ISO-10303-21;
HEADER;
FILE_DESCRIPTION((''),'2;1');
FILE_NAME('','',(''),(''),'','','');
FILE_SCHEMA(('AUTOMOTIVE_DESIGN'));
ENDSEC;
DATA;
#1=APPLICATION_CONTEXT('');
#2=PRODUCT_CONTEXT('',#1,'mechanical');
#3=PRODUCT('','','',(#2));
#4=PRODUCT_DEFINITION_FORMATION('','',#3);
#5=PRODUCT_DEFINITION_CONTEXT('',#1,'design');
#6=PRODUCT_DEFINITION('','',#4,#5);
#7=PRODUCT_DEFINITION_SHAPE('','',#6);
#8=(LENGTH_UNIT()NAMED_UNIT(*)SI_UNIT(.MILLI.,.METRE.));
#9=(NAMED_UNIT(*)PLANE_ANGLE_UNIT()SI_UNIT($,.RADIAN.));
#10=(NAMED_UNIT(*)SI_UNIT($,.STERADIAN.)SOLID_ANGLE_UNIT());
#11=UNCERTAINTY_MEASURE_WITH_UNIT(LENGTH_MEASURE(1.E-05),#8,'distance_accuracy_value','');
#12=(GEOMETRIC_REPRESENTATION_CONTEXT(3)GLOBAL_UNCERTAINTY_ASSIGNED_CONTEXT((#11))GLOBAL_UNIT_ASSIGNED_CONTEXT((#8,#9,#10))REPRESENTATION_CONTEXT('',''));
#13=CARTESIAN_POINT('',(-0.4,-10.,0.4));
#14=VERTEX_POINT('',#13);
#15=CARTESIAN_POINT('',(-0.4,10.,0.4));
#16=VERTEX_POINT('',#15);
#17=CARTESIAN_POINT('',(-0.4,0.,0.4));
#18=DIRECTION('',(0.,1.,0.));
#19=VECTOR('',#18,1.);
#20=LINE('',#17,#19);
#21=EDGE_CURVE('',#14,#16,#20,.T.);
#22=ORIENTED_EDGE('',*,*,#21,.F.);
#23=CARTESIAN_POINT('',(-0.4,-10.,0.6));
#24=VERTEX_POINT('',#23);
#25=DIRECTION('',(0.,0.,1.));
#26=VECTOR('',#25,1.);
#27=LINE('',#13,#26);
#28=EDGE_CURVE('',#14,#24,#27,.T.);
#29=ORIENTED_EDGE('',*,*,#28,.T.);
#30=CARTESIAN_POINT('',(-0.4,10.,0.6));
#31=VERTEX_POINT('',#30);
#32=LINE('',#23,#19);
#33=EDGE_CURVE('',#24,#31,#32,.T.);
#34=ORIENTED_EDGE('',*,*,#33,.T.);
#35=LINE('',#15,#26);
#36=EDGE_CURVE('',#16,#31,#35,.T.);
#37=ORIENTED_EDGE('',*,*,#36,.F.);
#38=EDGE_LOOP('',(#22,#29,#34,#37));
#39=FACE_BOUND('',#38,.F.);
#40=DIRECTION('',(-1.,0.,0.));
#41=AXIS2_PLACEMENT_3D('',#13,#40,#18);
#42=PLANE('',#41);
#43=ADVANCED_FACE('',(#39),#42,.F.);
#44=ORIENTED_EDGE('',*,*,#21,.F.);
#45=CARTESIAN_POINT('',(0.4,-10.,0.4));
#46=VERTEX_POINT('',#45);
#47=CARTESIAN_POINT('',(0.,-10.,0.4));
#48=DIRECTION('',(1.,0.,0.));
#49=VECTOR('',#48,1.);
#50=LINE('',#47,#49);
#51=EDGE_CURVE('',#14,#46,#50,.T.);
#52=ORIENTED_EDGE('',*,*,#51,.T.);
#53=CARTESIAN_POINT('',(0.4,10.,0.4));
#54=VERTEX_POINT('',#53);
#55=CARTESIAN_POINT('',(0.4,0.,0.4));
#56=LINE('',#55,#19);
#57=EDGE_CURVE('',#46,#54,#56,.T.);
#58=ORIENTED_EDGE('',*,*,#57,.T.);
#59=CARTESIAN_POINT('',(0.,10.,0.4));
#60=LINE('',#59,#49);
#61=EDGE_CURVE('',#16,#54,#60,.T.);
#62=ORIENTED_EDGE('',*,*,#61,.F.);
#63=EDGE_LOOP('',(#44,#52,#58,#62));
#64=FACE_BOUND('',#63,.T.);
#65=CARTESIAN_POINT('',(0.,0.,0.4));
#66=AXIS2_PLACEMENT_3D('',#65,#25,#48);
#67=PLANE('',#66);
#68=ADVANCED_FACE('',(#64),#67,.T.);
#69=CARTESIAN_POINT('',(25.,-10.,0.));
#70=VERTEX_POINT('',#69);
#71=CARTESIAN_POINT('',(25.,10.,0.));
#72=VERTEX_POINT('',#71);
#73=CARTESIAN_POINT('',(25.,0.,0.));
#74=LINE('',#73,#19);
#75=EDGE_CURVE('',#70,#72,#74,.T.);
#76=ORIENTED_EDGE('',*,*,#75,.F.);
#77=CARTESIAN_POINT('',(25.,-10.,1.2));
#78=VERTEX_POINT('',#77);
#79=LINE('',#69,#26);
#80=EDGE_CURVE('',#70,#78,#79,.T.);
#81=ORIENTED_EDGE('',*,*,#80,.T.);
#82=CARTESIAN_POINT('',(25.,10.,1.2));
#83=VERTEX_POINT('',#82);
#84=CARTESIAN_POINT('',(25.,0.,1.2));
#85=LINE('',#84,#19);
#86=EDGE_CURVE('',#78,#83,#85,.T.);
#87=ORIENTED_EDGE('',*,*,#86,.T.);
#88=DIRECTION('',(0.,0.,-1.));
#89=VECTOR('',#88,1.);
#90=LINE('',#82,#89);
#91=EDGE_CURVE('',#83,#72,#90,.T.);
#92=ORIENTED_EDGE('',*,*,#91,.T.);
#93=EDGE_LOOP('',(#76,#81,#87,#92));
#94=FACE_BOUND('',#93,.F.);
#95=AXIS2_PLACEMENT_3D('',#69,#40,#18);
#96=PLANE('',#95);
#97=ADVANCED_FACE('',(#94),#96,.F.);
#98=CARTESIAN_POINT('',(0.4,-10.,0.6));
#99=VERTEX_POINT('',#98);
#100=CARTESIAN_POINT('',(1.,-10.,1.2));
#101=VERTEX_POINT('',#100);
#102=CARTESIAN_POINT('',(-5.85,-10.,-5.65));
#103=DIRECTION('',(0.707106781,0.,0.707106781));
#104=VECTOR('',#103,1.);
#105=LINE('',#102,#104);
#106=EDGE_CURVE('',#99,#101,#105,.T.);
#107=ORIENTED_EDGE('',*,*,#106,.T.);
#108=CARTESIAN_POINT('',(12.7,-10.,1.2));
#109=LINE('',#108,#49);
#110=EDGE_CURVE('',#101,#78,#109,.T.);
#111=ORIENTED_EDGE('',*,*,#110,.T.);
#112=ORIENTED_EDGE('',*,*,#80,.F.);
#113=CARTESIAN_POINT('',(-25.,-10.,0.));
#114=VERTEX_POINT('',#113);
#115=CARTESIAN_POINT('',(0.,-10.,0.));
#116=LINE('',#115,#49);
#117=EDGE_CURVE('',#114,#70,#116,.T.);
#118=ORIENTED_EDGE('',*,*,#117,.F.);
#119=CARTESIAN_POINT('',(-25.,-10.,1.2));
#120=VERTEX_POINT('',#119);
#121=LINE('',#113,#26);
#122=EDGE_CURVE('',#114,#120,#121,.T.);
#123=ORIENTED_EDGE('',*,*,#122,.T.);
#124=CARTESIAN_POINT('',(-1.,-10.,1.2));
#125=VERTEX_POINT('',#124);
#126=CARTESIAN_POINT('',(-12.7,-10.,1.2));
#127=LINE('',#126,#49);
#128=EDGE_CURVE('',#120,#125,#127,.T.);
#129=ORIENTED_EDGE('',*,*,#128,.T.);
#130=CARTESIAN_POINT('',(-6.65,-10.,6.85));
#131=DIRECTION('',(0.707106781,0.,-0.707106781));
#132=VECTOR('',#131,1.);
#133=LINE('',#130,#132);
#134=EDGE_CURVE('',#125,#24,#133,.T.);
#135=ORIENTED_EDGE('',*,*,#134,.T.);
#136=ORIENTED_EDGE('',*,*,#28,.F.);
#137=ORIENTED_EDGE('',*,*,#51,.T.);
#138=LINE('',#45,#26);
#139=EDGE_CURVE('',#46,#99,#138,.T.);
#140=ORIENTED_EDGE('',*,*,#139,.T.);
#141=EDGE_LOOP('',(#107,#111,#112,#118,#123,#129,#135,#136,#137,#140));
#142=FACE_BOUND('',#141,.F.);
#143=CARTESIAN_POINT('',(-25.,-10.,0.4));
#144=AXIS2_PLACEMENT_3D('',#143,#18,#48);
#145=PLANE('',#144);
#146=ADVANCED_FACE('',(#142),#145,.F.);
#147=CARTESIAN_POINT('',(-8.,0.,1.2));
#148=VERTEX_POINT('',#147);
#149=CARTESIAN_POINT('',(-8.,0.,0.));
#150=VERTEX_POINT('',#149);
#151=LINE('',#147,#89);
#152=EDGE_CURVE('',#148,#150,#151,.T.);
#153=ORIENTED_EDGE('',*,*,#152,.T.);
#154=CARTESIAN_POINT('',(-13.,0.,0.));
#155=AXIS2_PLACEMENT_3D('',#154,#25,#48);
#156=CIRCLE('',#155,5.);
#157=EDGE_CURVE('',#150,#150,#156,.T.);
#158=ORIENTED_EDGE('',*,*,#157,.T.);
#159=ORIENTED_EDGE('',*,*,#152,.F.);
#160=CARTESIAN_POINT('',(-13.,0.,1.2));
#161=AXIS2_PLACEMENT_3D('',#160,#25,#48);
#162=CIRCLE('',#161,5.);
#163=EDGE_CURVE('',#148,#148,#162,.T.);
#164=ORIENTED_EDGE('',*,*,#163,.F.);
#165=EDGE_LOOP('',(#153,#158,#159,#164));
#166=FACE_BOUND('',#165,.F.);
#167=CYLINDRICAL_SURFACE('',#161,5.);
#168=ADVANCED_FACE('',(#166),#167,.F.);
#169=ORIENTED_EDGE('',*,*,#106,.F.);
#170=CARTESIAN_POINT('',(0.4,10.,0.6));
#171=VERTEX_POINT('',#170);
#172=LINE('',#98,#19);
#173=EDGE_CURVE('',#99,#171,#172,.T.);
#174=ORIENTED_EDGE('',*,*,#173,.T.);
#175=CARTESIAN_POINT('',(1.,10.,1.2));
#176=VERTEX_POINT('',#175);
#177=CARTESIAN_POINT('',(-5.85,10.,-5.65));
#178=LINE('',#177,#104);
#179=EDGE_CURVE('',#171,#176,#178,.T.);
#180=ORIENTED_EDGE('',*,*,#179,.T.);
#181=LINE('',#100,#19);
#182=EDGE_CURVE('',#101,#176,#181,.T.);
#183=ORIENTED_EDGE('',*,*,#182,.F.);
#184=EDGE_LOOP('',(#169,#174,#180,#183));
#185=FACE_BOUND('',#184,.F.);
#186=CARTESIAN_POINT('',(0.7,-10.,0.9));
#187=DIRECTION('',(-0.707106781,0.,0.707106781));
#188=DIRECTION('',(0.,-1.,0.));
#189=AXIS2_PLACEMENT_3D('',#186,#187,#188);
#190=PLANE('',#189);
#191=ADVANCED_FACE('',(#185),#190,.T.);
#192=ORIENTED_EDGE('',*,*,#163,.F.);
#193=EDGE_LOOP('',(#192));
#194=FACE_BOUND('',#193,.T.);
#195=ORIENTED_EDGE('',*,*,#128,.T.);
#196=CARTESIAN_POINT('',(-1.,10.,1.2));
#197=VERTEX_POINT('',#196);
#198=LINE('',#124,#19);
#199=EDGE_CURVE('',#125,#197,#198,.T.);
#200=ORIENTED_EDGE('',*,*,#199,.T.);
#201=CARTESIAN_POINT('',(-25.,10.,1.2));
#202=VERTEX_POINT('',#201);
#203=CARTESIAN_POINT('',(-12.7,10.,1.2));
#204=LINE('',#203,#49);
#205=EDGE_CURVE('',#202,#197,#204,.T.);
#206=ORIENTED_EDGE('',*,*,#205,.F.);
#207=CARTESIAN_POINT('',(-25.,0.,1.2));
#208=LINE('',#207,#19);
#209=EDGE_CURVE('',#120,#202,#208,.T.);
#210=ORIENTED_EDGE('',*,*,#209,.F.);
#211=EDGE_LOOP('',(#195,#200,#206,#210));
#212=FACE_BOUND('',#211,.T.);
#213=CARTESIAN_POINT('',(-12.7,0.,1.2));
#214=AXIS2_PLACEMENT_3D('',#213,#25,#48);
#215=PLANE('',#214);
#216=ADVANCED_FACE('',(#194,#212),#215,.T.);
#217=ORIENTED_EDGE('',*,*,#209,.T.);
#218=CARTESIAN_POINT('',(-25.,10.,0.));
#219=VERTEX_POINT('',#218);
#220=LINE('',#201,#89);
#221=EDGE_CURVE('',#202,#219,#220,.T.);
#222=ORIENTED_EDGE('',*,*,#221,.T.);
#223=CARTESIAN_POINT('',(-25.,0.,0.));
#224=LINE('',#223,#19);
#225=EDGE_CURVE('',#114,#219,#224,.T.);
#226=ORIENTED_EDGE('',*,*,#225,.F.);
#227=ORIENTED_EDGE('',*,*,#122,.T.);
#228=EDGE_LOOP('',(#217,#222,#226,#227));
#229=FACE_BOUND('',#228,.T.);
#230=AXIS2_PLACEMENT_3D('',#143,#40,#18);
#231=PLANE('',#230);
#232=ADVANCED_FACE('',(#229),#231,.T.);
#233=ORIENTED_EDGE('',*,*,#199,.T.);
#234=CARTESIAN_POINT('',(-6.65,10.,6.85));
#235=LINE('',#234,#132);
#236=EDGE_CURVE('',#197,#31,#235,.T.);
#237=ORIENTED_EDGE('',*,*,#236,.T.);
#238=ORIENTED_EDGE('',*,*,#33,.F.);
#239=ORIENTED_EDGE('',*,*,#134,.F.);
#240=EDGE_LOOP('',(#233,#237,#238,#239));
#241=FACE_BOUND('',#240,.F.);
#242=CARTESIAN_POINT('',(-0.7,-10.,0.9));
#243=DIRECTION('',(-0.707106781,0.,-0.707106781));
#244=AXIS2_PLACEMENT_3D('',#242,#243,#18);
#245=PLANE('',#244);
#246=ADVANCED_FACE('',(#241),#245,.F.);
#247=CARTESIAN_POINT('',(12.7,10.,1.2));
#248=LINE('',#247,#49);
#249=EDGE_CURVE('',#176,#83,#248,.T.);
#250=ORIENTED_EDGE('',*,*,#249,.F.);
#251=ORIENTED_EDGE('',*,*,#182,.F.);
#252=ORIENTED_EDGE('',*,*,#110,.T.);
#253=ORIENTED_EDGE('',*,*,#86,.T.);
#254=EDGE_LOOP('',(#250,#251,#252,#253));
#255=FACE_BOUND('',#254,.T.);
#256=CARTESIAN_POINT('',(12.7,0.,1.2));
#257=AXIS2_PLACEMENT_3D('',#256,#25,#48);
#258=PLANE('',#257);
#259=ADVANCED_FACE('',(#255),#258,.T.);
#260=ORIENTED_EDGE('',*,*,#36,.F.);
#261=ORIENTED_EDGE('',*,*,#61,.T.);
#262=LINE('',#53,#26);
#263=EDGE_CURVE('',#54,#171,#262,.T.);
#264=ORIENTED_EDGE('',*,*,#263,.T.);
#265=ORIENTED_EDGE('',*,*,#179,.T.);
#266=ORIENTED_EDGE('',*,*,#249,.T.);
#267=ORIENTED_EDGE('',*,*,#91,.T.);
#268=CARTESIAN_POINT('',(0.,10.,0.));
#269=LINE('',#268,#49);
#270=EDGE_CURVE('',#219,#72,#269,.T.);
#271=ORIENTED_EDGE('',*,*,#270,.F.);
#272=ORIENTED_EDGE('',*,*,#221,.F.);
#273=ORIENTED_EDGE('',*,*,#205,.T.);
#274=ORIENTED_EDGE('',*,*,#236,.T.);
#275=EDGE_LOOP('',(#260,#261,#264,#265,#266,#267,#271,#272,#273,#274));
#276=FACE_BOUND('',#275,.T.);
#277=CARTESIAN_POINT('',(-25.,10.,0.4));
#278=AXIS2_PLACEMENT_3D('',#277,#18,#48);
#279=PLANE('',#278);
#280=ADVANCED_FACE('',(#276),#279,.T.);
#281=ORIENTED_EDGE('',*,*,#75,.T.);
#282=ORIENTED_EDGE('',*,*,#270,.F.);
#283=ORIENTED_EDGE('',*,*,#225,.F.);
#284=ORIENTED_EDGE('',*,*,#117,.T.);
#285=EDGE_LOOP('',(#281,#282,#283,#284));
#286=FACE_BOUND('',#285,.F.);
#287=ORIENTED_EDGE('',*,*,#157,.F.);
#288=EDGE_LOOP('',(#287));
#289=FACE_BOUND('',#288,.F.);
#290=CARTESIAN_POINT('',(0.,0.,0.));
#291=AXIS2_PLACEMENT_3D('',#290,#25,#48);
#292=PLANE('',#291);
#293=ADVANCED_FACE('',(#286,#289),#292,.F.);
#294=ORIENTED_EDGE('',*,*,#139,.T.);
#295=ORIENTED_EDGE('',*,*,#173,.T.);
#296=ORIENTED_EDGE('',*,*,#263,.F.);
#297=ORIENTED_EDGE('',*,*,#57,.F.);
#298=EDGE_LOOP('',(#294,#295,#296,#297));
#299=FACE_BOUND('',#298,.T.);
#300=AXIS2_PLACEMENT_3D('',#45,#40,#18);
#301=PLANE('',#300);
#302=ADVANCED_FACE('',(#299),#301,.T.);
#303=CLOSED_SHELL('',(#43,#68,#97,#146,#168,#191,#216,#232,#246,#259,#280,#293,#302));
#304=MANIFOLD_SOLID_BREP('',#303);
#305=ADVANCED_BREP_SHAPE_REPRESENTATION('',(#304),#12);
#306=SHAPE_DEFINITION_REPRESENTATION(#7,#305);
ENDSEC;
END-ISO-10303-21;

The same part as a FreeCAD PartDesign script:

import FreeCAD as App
import Part
import Sketcher

V = App.Vector
Q = App.Units.Quantity


def edges_at(feature, points):
    """Names of the edges that pass closest to the given points."""
    edges = feature.Shape.Edges
    near = lambda p: min(range(len(edges)), key=lambda i: edges[i].distToShape(Part.Vertex(*p))[0])
    return sorted({f"Edge{near(p) + 1}" for p in points})

doc = App.newDocument("Part")
body = doc.addObject("PartDesign::Body", "Body")

# Sketch on XY plane
sketch1 = body.newObject("Sketcher::SketchObject", "Sketch")
sketch1.AttachmentSupport = (doc.getObject("XY_Plane"), [""])
sketch1.MapMode = "FlatFace"
sketch1.addGeometry([
    Part.LineSegment(V(-25, 10, 0), V(-25, -10, 0)),
    Part.LineSegment(V(-25, -10, 0), V(25, -10, 0)),
    Part.LineSegment(V(25, -10, 0), V(25, 10, 0)),
    Part.LineSegment(V(25, 10, 0), V(-25, 10, 0)),
], False)
sketch1.addConstraint([
    Sketcher.Constraint("Coincident", 0, 2, 1, 1),
    Sketcher.Constraint("Coincident", 1, 2, 2, 1),
    Sketcher.Constraint("Coincident", 2, 2, 3, 1),
    Sketcher.Constraint("Coincident", 3, 2, 0, 1),
    Sketcher.Constraint("Vertical", 0),
    Sketcher.Constraint("Horizontal", 1),
    Sketcher.Constraint("Vertical", 2),
    Sketcher.Constraint("Horizontal", 3),
    Sketcher.Constraint("Symmetric", 0, 2, 2, 2, -1, 1),
    Sketcher.Constraint("DistanceX", 1, 1, 1, 2, Q("50 mm")),
    Sketcher.Constraint("DistanceY", 0, 2, 0, 1, Q("20 mm")),
])
pad1 = body.newObject("PartDesign::Pad", "Pad")
pad1.Profile = sketch1
pad1.Length = 0.4

# Sketch on XY plane
sketch2 = body.newObject("Sketcher::SketchObject", "Sketch001")
sketch2.AttachmentSupport = (doc.getObject("XY_Plane"), [""])
sketch2.MapMode = "FlatFace"
sketch2.AttachmentOffset = App.Placement(V(0, 0, 0.4), App.Rotation())
sketch2.addGeometry([
    Part.LineSegment(V(-25, 10, 0), V(-25, -10, 0)),  # 0
    Part.LineSegment(V(-25, -10, 0), V(0, -10, 0)),  # 1
    Part.LineSegment(V(0, -10, 0), V(0, 10, 0)),  # 2
    Part.LineSegment(V(0, 10, 0), V(-25, 10, 0)),  # 3
    Part.LineSegment(V(0, 10, 0), V(0, -10, 0)),  # 4
    Part.LineSegment(V(0, -10, 0), V(25, -10, 0)),  # 5
    Part.LineSegment(V(25, -10, 0), V(25, 10, 0)),  # 6
    Part.LineSegment(V(25, 10, 0), V(0, 10, 0)),  # 7
], False)
sketch2.addConstraint([
    Sketcher.Constraint("Coincident", 0, 2, 1, 1),
    Sketcher.Constraint("Coincident", 1, 2, 2, 1),
    Sketcher.Constraint("Coincident", 2, 2, 3, 1),
    Sketcher.Constraint("Coincident", 3, 2, 0, 1),
    Sketcher.Constraint("Coincident", 4, 2, 5, 1),
    Sketcher.Constraint("Coincident", 5, 2, 6, 1),
    Sketcher.Constraint("Coincident", 6, 2, 7, 1),
    Sketcher.Constraint("Coincident", 7, 2, 4, 1),
    Sketcher.Constraint("Vertical", 0),
    Sketcher.Constraint("Horizontal", 1),
    Sketcher.Constraint("Vertical", 2),
    Sketcher.Constraint("Horizontal", 3),
    Sketcher.Constraint("Vertical", 4),
    Sketcher.Constraint("Horizontal", 5),
    Sketcher.Constraint("Vertical", 6),
    Sketcher.Constraint("Horizontal", 7),
    Sketcher.Constraint("Symmetric", 2, 2, 4, 2, -1, 1),
    Sketcher.Constraint("Symmetric", 0, 2, 6, 2, -1, 1),
    Sketcher.Constraint("Horizontal", 1, 2, 4, 2),
    Sketcher.Constraint("DistanceY", 0, 2, 0, 1, Q("20 mm")),
    Sketcher.Constraint("DistanceX", 1, 1, 1, 2, Q("24.6 mm")),
    Sketcher.Constraint("DistanceX", 0, 2, -1, 1, Q("25 mm")),
])
pad2 = body.newObject("PartDesign::Pad", "Pad001")
pad2.Profile = sketch2
pad2.Length = 0.8

# Sketch on XY plane
sketch3 = body.newObject("Sketcher::SketchObject", "Sketch002")
sketch3.AttachmentSupport = (doc.getObject("XY_Plane"), [""])
sketch3.MapMode = "FlatFace"
sketch3.AttachmentOffset = App.Placement(V(0, 0, 1.2), App.Rotation())
sketch3.addGeometry(Part.Circle(V(-13, 0, 0), V(0, 0, 1), 5), False)
sketch3.addConstraint([
    Sketcher.Constraint("PointOnObject", 0, 3, -1),
    Sketcher.Constraint("Diameter", 0, Q("10 mm")),
    Sketcher.Constraint("DistanceX", 0, 3, -1, 1, Q("13 mm")),
])
pocket1 = body.newObject("PartDesign::Pocket", "Pocket")
pocket1.Profile = sketch3
pocket1.Length = 25
doc.recompute()

chamfer = body.newObject("PartDesign::Chamfer", "Chamfer")
chamfer.Base = (pocket1, edges_at(pocket1, [(-0.4, 0, 1.2), (0.4, 0, 1.2)]))
chamfer.Size = 0.6

doc.recompute()
